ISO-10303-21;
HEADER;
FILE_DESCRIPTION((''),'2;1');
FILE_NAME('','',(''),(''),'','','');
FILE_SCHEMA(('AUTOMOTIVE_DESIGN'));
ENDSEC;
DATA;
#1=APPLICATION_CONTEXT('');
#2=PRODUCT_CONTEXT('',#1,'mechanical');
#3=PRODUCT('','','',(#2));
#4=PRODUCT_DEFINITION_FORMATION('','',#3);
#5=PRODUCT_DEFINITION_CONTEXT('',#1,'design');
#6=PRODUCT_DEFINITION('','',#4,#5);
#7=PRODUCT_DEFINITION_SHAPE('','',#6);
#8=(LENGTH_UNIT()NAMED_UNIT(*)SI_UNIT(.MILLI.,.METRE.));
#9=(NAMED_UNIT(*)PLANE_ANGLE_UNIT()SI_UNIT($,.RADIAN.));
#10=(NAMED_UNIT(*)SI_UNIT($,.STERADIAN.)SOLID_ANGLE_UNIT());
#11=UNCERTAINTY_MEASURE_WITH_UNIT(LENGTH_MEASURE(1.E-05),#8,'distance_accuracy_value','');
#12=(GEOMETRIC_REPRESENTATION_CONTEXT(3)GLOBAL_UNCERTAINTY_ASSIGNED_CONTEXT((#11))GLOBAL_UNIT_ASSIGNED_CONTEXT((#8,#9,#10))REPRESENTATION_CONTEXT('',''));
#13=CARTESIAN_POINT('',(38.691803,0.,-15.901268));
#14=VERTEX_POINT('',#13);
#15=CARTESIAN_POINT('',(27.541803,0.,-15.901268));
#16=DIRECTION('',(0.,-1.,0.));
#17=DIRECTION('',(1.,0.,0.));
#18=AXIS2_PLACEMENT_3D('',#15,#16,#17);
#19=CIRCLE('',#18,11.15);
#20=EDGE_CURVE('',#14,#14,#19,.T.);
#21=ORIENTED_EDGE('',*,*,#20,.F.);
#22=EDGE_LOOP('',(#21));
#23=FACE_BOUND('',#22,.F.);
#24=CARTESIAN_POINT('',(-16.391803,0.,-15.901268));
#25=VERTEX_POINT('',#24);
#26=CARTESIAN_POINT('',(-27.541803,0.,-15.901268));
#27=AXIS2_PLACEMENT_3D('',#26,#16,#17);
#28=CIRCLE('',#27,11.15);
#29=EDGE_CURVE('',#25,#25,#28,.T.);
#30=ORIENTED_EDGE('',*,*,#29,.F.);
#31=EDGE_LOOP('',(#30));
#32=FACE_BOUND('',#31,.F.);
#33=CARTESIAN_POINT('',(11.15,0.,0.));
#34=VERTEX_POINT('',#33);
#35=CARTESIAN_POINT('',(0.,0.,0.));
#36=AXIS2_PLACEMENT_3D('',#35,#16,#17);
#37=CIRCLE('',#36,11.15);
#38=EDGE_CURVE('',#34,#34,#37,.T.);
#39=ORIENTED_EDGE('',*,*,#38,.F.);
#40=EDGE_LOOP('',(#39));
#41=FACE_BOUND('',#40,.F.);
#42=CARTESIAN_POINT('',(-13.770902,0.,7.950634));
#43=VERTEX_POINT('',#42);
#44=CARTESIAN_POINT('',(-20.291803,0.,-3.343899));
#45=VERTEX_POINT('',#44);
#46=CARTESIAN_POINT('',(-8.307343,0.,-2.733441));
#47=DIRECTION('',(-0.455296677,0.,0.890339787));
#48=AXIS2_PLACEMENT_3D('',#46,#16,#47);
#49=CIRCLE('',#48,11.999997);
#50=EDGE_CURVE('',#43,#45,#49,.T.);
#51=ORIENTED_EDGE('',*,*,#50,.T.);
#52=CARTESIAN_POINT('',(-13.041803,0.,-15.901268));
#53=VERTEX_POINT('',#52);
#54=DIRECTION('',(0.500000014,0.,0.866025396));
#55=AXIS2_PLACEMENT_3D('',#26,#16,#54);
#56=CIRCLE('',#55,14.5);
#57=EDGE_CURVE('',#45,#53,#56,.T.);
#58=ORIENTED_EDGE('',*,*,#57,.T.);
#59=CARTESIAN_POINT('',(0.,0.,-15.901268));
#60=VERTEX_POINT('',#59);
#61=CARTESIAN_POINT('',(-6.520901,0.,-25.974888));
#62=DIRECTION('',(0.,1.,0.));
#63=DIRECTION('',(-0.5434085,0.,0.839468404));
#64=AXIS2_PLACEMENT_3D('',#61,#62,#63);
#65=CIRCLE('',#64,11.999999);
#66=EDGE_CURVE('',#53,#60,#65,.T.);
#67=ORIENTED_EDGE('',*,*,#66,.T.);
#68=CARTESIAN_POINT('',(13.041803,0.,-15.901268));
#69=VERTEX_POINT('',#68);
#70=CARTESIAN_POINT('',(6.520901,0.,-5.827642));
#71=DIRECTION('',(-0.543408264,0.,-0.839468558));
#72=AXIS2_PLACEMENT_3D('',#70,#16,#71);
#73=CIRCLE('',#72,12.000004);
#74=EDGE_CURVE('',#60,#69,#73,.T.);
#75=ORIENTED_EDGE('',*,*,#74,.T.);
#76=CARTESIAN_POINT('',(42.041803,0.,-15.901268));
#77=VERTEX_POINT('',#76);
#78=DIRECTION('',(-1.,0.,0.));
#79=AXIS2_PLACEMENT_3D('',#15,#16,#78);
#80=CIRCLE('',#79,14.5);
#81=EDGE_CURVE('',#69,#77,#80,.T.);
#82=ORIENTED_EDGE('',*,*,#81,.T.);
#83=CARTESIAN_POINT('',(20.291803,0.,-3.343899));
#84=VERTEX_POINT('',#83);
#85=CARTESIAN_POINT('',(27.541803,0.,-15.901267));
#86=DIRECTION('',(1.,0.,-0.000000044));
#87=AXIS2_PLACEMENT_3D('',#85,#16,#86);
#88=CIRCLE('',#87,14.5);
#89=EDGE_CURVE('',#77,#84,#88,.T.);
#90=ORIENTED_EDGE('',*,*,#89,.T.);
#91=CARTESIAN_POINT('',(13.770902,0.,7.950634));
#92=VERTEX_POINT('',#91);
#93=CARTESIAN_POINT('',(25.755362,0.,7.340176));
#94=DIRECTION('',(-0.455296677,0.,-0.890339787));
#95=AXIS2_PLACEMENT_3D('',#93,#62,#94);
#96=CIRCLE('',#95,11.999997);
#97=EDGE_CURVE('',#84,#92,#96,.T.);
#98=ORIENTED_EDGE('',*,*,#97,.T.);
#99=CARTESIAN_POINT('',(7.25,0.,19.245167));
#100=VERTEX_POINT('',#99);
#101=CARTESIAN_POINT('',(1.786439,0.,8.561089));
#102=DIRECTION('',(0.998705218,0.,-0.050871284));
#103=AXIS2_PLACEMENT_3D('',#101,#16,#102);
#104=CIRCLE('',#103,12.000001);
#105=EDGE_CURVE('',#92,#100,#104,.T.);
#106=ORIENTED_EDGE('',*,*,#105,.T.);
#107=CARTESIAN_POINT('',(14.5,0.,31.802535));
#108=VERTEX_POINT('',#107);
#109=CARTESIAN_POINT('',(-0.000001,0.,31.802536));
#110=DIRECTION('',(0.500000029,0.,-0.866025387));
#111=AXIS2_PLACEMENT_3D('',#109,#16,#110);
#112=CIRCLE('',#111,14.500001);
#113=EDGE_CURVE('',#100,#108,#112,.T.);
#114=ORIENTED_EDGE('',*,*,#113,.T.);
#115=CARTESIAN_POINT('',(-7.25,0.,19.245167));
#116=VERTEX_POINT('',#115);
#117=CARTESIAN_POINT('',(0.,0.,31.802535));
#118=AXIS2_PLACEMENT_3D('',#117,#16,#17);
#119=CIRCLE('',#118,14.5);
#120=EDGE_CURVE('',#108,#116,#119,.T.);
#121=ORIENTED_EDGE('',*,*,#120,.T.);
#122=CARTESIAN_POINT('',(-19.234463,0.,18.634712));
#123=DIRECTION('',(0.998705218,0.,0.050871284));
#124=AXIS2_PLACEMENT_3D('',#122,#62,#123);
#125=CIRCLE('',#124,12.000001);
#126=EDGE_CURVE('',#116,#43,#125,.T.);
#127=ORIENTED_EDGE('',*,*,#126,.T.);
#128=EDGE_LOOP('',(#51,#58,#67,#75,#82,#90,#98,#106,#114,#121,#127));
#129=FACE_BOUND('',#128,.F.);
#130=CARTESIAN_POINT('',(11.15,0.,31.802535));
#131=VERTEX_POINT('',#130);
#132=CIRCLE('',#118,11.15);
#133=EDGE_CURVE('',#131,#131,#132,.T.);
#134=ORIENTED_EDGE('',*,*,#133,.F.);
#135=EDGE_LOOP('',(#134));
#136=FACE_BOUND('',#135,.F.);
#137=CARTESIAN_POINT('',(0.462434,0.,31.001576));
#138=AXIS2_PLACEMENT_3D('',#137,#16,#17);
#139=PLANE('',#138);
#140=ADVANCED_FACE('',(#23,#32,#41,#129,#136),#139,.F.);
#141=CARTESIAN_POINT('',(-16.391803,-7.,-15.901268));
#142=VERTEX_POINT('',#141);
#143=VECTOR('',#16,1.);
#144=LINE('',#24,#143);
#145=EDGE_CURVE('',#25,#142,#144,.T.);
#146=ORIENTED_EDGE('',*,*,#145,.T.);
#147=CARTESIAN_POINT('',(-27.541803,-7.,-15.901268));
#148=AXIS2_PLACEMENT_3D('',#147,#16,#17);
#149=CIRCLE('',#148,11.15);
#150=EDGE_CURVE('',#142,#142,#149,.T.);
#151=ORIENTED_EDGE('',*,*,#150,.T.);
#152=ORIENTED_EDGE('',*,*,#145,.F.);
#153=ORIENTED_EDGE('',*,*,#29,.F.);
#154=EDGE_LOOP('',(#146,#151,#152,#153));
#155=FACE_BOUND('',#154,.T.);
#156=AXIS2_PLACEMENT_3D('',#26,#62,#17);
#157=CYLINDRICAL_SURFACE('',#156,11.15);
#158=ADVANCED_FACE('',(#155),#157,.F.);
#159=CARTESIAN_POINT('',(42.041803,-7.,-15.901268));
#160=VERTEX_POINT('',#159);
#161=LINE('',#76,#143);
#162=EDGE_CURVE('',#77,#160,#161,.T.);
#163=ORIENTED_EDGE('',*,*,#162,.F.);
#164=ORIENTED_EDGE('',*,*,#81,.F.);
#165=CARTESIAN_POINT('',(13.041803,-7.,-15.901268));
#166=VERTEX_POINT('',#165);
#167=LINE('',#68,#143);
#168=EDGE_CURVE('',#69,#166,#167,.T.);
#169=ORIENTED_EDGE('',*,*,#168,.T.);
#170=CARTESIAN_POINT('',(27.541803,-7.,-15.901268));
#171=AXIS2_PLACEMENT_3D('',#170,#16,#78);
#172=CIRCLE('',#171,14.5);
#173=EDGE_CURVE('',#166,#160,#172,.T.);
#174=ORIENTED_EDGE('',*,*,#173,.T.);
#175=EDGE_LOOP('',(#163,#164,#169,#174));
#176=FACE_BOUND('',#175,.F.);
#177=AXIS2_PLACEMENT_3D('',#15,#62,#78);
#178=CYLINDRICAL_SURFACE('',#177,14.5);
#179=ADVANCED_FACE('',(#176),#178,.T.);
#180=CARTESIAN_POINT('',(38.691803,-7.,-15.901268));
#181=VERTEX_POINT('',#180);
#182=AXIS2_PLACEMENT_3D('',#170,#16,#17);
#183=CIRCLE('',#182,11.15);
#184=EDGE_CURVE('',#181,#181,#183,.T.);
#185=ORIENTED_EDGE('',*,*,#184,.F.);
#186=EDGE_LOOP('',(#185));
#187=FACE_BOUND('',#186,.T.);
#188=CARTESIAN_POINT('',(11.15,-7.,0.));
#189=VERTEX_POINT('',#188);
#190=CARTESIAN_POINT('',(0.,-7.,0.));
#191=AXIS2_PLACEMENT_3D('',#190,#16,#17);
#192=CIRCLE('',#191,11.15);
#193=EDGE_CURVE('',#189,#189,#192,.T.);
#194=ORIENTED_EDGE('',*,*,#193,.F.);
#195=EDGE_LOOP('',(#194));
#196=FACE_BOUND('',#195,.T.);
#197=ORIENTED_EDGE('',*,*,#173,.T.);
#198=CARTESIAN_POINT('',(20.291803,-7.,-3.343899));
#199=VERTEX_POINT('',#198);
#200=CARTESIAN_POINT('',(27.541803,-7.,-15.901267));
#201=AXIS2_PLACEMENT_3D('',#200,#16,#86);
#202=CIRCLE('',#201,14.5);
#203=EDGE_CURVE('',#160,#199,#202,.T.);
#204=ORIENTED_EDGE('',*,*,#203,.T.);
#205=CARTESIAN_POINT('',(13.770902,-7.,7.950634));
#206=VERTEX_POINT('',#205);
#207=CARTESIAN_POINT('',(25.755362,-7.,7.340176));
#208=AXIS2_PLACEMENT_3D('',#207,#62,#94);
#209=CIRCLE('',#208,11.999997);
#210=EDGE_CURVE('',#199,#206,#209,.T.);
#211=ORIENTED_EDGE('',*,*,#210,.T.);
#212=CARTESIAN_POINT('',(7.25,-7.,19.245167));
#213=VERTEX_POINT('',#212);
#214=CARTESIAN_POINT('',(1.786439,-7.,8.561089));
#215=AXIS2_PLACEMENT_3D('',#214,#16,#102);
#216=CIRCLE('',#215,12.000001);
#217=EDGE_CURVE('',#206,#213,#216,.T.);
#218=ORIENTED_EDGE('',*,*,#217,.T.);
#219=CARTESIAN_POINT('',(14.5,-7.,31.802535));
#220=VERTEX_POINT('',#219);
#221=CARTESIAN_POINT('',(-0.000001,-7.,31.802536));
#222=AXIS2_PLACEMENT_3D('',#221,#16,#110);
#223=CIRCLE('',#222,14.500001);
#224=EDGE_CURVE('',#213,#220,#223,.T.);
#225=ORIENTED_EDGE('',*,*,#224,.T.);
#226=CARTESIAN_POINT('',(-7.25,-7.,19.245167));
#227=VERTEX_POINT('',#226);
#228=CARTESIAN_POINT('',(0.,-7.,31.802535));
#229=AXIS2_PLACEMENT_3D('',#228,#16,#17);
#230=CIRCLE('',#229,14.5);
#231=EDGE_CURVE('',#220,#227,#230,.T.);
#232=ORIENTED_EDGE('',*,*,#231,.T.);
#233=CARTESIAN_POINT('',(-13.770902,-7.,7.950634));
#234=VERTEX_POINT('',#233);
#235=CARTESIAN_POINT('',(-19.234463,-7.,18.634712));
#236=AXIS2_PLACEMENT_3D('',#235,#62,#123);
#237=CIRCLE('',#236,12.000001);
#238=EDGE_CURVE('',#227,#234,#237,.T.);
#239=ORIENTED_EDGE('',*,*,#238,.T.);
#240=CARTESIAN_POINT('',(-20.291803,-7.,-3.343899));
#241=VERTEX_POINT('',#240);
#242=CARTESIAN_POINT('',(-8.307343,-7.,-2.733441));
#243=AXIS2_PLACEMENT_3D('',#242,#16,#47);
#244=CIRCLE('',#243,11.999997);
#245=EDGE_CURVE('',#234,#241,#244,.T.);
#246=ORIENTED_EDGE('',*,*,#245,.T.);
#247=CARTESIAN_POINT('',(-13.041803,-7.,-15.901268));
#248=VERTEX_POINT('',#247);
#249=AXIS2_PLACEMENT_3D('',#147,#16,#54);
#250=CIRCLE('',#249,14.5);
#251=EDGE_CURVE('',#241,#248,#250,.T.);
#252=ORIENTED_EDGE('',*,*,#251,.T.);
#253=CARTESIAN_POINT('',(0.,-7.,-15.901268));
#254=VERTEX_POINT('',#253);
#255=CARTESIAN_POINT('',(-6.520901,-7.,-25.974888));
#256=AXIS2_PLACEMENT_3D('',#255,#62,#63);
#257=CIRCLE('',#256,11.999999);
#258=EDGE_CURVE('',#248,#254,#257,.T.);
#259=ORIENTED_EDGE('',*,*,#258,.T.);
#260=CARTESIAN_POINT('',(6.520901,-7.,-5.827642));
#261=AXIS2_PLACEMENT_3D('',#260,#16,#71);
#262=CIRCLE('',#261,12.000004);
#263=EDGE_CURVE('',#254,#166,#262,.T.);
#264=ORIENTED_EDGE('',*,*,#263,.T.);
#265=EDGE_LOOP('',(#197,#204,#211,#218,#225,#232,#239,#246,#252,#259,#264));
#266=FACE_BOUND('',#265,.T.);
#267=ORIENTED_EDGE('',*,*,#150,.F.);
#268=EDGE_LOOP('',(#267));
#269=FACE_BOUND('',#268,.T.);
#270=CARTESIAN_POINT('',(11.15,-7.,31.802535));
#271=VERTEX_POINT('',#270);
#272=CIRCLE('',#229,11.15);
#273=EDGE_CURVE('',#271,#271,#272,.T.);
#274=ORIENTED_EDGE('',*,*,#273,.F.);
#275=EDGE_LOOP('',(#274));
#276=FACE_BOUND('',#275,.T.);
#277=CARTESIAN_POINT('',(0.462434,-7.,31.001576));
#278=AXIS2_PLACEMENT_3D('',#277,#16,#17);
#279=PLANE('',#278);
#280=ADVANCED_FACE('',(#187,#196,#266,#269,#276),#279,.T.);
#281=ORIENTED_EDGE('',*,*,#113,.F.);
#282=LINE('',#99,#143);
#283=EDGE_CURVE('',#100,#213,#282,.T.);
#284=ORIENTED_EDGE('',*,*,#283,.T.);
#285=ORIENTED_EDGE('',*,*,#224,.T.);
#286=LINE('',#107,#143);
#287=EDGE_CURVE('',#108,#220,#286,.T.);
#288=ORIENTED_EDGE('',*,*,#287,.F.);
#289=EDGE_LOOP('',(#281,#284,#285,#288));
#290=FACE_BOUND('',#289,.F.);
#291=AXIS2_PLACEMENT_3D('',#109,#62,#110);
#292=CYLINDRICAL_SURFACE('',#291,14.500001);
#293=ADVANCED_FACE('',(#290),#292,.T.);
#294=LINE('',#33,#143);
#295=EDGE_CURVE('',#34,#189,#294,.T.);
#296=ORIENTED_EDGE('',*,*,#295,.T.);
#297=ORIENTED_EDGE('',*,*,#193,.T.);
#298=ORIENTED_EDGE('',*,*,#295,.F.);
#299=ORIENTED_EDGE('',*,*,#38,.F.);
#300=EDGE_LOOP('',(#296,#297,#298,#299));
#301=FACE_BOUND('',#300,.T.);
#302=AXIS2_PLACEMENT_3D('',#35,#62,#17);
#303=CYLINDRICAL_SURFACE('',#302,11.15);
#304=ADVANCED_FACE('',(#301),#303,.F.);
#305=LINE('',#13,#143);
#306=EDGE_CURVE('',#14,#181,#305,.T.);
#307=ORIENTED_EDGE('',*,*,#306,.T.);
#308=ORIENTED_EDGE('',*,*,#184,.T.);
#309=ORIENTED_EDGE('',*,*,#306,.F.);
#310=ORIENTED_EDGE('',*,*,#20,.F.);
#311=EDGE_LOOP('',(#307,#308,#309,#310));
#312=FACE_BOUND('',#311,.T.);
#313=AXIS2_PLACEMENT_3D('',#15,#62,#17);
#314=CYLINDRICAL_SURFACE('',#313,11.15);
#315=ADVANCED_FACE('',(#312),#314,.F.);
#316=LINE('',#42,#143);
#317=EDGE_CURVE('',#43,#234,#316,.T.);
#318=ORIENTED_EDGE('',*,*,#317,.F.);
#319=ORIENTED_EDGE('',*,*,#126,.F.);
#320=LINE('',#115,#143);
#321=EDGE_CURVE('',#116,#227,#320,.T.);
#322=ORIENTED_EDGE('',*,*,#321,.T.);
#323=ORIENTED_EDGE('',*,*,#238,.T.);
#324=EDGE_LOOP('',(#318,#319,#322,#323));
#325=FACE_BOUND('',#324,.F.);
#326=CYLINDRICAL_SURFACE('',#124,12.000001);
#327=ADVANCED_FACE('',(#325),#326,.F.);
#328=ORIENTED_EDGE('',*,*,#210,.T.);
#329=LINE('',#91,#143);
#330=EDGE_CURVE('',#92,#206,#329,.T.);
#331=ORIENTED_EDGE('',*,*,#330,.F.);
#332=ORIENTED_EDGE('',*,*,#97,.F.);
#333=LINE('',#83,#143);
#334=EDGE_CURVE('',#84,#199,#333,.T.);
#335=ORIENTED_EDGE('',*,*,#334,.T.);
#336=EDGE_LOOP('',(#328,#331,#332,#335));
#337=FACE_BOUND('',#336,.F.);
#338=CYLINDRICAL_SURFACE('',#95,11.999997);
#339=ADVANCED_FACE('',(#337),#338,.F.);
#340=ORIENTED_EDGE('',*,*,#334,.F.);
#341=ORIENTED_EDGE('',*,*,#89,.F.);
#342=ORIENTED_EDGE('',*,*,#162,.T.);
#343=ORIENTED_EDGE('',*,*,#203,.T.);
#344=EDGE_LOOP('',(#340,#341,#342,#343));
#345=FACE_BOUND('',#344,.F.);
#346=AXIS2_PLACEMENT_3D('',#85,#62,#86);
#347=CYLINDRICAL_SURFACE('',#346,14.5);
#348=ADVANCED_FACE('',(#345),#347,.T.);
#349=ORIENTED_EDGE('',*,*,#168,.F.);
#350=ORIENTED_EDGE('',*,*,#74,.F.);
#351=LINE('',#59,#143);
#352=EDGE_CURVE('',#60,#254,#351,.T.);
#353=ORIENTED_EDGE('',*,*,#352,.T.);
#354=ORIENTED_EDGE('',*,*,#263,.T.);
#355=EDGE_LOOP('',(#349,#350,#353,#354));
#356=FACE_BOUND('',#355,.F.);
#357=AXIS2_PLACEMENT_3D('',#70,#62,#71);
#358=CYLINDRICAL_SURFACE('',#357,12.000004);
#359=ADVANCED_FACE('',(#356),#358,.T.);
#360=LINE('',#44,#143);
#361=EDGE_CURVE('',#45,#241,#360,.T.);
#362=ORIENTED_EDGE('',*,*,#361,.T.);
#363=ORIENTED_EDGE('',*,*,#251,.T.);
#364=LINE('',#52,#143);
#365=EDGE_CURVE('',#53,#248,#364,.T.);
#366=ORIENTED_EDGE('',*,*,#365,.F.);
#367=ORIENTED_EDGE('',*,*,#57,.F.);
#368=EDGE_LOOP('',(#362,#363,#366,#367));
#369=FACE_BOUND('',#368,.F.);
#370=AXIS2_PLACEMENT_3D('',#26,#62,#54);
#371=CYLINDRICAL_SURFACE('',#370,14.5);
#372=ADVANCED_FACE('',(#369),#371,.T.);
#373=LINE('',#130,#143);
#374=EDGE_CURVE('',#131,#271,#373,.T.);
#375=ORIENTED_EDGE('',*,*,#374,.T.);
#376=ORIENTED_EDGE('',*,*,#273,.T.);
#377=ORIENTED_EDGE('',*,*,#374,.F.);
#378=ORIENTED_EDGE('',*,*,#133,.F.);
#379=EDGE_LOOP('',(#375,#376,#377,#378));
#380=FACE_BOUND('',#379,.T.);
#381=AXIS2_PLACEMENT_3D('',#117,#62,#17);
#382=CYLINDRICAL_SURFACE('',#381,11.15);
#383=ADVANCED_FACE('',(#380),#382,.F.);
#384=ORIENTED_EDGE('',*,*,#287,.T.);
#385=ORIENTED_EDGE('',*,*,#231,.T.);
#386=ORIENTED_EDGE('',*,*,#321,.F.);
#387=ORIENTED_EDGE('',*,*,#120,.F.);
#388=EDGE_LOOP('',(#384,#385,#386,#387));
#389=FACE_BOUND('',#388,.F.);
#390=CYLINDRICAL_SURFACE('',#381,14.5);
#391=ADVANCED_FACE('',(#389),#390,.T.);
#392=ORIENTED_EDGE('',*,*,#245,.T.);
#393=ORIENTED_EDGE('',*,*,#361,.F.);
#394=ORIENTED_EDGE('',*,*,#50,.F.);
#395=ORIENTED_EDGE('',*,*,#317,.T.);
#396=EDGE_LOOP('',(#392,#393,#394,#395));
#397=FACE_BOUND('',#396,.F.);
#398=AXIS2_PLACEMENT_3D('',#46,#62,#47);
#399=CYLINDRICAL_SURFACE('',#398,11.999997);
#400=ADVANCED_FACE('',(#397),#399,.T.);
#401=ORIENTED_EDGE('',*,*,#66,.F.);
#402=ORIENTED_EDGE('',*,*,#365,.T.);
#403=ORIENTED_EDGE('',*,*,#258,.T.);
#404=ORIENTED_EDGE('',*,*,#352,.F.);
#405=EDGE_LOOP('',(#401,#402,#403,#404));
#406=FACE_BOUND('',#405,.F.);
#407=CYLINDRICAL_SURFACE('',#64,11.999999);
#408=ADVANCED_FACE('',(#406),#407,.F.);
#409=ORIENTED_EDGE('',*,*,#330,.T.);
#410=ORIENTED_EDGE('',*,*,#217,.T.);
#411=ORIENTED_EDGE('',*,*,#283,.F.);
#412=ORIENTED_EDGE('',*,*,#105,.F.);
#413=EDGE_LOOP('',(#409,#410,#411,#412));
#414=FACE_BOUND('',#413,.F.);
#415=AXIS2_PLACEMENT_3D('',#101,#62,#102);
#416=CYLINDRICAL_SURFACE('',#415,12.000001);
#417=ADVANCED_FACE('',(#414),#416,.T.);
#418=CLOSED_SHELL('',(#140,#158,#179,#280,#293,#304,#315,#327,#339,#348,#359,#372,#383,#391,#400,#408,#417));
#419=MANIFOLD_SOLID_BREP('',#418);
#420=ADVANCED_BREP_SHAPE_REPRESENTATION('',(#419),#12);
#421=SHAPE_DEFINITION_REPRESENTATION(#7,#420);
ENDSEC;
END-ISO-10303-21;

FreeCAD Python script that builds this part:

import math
import FreeCAD as App
import Part
import Sketcher
from FreeCAD import Vector

doc = App.newDocument("Part")
body = doc.addObject("PartDesign::Body", "Body")

# Sketch on XZ plane
sketch1 = body.newObject("Sketcher::SketchObject", "Sketch")
sketch1.AttachmentSupport = (doc.getObject("XZ_Plane"), [""])
sketch1.MapMode = "FlatFace"
sketch1.addGeometry(Part.ArcOfCircle(Part.Circle(Vector(0, 32, 0), Vector(0, 0, 1), 15), math.radians(-60), math.radians(0)), False)
sketch1.addGeometry(Part.ArcOfCircle(Part.Circle(Vector(0, 32, 0), Vector(0, 0, 1), 14), math.radians(0), math.radians(240)), False)
sketch1.addGeometry(Part.ArcOfCircle(Part.Circle(Vector(-19, 19, 0), Vector(0, 0, 1), 12), math.radians(-63), math.radians(3)), False)
sketch1.addGeometry(Part.ArcOfCircle(Part.Circle(Vector(-8, -3, 0), Vector(0, 0, 1), 12), math.radians(117), math.radians(183)), False)
sketch1.addGeometry(Part.ArcOfCircle(Part.Circle(Vector(-28, -16, 0), Vector(0, 0, 1), 15), math.radians(60), math.radians(360)), False)
sketch1.addGeometry(Part.ArcOfCircle(Part.Circle(Vector(-7, -26, 0), Vector(0, 0, 1), 12), math.radians(57), math.radians(123)), False)
sketch1.addGeometry(Part.ArcOfCircle(Part.Circle(Vector(7, -6, 0), Vector(0, 0, 1), 12), math.radians(-123), math.radians(-57)), False)
sketch1.addGeometry(Part.ArcOfCircle(Part.Circle(Vector(28, -16, 0), Vector(0, 0, 1), 14), math.radians(180), math.radians(360)), False)
sketch1.addGeometry(Part.ArcOfCircle(Part.Circle(Vector(28, -16, 0), Vector(0, 0, 1), 14), math.radians(0), math.radians(120)), False)
sketch1.addGeometry(Part.ArcOfCircle(Part.Circle(Vector(26, 7, 0), Vector(0, 0, 1), 12), math.radians(177), math.radians(243)), False)
sketch1.addGeometry(Part.ArcOfCircle(Part.Circle(Vector(2, 9, 0), Vector(0, 0, 1), 12), math.radians(-3), math.radians(63)), False)
sketch1.addGeometry(Part.Circle(Vector(-28, -16, 0), Vector(0, 0, 1), 11), False)
sketch1.addGeometry(Part.Circle(Vector(28, -16, 0), Vector(0, 0, 1), 11), False)
sketch1.addGeometry(Part.Circle(Vector(0, 0, 0), Vector(0, 0, 1), 11), False)
sketch1.addGeometry(Part.Circle(Vector(0, 32, 0), Vector(0, 0, 1), 11), False)
sketch1.addConstraint(Sketcher.Constraint("Tangent", 0, 2, 1, 1))
sketch1.addConstraint(Sketcher.Constraint("Coincident", 1, 2, 2, 2))
sketch1.addConstraint(Sketcher.Constraint("Tangent", 2, 1, 3, 1))
sketch1.addConstraint(Sketcher.Constraint("Coincident", 3, 2, 4, 1))
sketch1.addConstraint(Sketcher.Constraint("Coincident", 4, 2, 5, 2))
sketch1.addConstraint(Sketcher.Constraint("Tangent", 5, 1, 6, 1))
sketch1.addConstraint(Sketcher.Constraint("Coincident", 6, 2, 7, 1))
sketch1.addConstraint(Sketcher.Constraint("Tangent", 7, 2, 8, 1))
sketch1.addConstraint(Sketcher.Constraint("Coincident", 8, 2, 9, 2))
sketch1.addConstraint(Sketcher.Constraint("Tangent", 9, 1, 10, 1))
sketch1.addConstraint(Sketcher.Constraint("Coincident", 10, 2, 0, 1))
sketch1.addConstraint(Sketcher.Constraint("Coincident", 13, 3, -1, 1))
sketch1.addConstraint(Sketcher.Constraint("Coincident", 11, 3, 4, 3))
sketch1.addConstraint(Sketcher.Constraint("Coincident", 12, 3, 7, 3))
sketch1.addConstraint(Sketcher.Constraint("Coincident", 14, 3, 0, 3))
sketch1.addConstraint(Sketcher.Constraint("Equal", 0, 1))
sketch1.addConstraint(Sketcher.Constraint("Equal", 1, 4))
sketch1.addConstraint(Sketcher.Constraint("Equal", 3, 5))
sketch1.addConstraint(Sketcher.Constraint("Equal", 4, 7))
sketch1.addConstraint(Sketcher.Constraint("Equal", 7, 8))
sketch1.addConstraint(Sketcher.Constraint("Equal", 5, 9))
sketch1.addConstraint(Sketcher.Constraint("Equal", 5, 10))
sketch1.addConstraint(Sketcher.Constraint("Equal", 11, 12))
sketch1.addConstraint(Sketcher.Constraint("Equal", 12, 13))
sketch1.addConstraint(Sketcher.Constraint("Equal", 13, 14))
sketch1.addConstraint(Sketcher.Constraint("Symmetric", 4, 3, 7, 3, -2))
sketch1.addConstraint(Sketcher.Constraint("Symmetric", 2, 1, 9, 1, -2))
sketch1.addConstraint(Sketcher.Constraint("Symmetric", 1, 2, 10, 2, -2))
sketch1.addConstraint(Sketcher.Constraint("PointOnObject", 5, 1, -2))
sketch1.addConstraint(Sketcher.Constraint("Horizontal", 14, 3, 0, 2))
sketch1.addConstraint(Sketcher.Constraint("Horizontal", 12, 3, 4, 2))
sketch1.addConstraint(Sketcher.Constraint("Horizontal", 4, 2, 5, 1))
sketch1.addConstraint(Sketcher.Constraint("Horizontal", 5, 1, 6, 2))
sketch1.addConstraint(Sketcher.Constraint("Horizontal", 6, 2, 7, 2))
sketch1.addConstraint(Sketcher.Constraint("Horizontal", 3, 2, 8, 2))
sketch1.addConstraint(Sketcher.Constraint("Radius", 2, 12.000001))
sketch1.addConstraint(Sketcher.Constraint("Radius", 5, 11.999999))
sketch1.addConstraint(Sketcher.Constraint("Diameter", 11, 22.3))
sketch1.addConstraint(Sketcher.Constraint("Radius", 0, 14.500001))
sketch1.addConstraint(Sketcher.Constraint("DistanceX", 1, 2, -1, 1, 7.25))
sketch1.addConstraint(Sketcher.Constraint("DistanceX", 4, 3, 3, 2, 7.25))
sketch1.addConstraint(Sketcher.Constraint("DistanceX", 5, 3, -1, 1, 6.520901))
sketch1.addConstraint(Sketcher.Constraint("DistanceY", 3, 2, -1, 1, 3.343899))
sketch1.addConstraint(Sketcher.Constraint("DistanceY", 5, 3, 2, 3, 44.6096))
pad1 = body.newObject("PartDesign::Pad", "Pad")
pad1.Profile = sketch1
pad1.Length = 7

doc.recompute()
